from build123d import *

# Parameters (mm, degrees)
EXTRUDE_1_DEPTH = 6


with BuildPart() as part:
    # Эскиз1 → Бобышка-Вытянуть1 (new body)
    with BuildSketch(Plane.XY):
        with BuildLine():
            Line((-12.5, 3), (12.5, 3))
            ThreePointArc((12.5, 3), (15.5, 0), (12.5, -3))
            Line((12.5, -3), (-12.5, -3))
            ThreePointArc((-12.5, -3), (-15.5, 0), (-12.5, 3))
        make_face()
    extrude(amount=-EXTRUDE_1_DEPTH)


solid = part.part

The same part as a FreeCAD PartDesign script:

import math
import FreeCAD as App
import Part
import Sketcher

V = App.Vector
Q = App.Units.Quantity

doc = App.newDocument("Part")
body = doc.addObject("PartDesign::Body", "Body")

# Sketch on XY plane
sketch1 = body.newObject("Sketcher::SketchObject", "Sketch")
sketch1.AttachmentSupport = (doc.getObject("XY_Plane"), [""])
sketch1.MapMode = "FlatFace"
sketch1.addGeometry(Part.LineSegment(V(12.5, 3, 0), V(-12.5, 3, 0)), False)
sketch1.addGeometry(Part.ArcOfCircle(Part.Circle(V(-12.5, 0, 0), V(0, 0, 1), 3), math.radians(90), math.radians(270)), False)
sketch1.addGeometry(Part.LineSegment(V(-12.5, -3, 0), V(12.5, -3, 0)), False)
sketch1.addGeometry(Part.ArcOfCircle(Part.Circle(V(12.5, 0, 0), V(0, 0, 1), 3), math.radians(-90), math.radians(90)), False)
sketch1.addConstraint(Sketcher.Constraint("Tangent", 0, 2, 1, 1))
sketch1.addConstraint(Sketcher.Constraint("Tangent", 1, 2, 2, 1))
sketch1.addConstraint(Sketcher.Constraint("Tangent", 2, 2, 3, 1))
sketch1.addConstraint(Sketcher.Constraint("Tangent", 3, 2, 0, 1))
sketch1.addConstraint(Sketcher.Constraint("Horizontal", 0))
sketch1.addConstraint(Sketcher.Constraint("Horizontal", 2))
sketch1.addConstraint(Sketcher.Constraint("Symmetric", 1, 3, 3, 3, -1, 1))
sketch1.addConstraint(Sketcher.Constraint("Radius", 1, Q("3 mm")))
sketch1.addConstraint(Sketcher.Constraint("DistanceX", 0, 2, 0, 1, Q("25 mm")))
pad1 = body.newObject("PartDesign::Pad", "Pad")
pad1.Profile = sketch1
pad1.Length = 6
pad1.Reversed = True

doc.recompute()
